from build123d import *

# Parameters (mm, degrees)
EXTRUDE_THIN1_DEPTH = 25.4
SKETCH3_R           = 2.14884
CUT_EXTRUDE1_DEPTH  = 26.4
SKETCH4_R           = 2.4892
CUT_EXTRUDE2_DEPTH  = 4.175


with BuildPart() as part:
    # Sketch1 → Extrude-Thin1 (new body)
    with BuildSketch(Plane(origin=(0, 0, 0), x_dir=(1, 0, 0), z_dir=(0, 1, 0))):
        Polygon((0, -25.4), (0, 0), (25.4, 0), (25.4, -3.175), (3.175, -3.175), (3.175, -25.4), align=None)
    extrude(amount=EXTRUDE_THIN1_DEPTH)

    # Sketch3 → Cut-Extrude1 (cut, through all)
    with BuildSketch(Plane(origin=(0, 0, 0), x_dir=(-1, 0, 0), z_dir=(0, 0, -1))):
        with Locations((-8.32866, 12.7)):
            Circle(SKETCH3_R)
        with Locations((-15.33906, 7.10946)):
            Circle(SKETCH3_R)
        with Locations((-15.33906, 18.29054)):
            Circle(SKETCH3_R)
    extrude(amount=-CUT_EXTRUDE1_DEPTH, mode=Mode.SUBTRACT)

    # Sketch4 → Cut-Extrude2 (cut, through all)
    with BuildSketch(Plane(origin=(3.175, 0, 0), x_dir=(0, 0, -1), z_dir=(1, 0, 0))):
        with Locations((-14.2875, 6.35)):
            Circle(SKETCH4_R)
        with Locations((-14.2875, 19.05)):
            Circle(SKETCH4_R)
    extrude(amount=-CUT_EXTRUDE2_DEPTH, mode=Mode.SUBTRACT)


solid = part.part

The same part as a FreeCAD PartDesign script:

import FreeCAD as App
import Part
import Sketcher

V = App.Vector
Q = App.Units.Quantity

doc = App.newDocument("Part")
body = doc.addObject("PartDesign::Body", "Body")

# Sketch on XZ plane
sketch1 = body.newObject("Sketcher::SketchObject", "Sketch")
sketch1.AttachmentSupport = (doc.getObject("XZ_Plane"), [""])
sketch1.MapMode = "FlatFace"
sketch1.addGeometry([
    Part.LineSegment(V(0, 0, 0), V(0, 25.4, 0)),  # 0
    Part.LineSegment(V(0, 25.4, 0), V(3.175, 25.4, 0)),  # 1
    Part.LineSegment(V(3.175, 25.4, 0), V(3.175, 3.175, 0)),  # 2
    Part.LineSegment(V(3.175, 3.175, 0), V(25.4, 3.175, 0)),  # 3
    Part.LineSegment(V(25.4, 3.175, 0), V(25.4, 0, 0)),  # 4
    Part.LineSegment(V(25.4, 0, 0), V(0, 0, 0)),  # 5
], False)
sketch1.addConstraint([
    Sketcher.Constraint("Coincident", 0, 2, 1, 1),
    Sketcher.Constraint("Coincident", 1, 2, 2, 1),
    Sketcher.Constraint("Coincident", 2, 2, 3, 1),
    Sketcher.Constraint("Coincident", 3, 2, 4, 1),
    Sketcher.Constraint("Coincident", 4, 2, 5, 1),
    Sketcher.Constraint("Coincident", 5, 2, 0, 1),
    Sketcher.Constraint("Vertical", 0),
    Sketcher.Constraint("Horizontal", 1),
    Sketcher.Constraint("Vertical", 2),
    Sketcher.Constraint("Horizontal", 3),
    Sketcher.Constraint("Vertical", 4),
    Sketcher.Constraint("Horizontal", 5),
    Sketcher.Constraint("Coincident", 5, 2, -1, 1),
    Sketcher.Constraint("Equal", 5, 0),
    Sketcher.Constraint("Equal", 3, 2),
    Sketcher.Constraint("DistanceX", 5, 2, 5, 1, Q("1 in")),
    Sketcher.Constraint("DistanceX", 1, 1, 1, 2, Q("0.125 in")),
])
pad1 = body.newObject("PartDesign::Pad", "Pad")
pad1.Profile = sketch1
pad1.Length = Q("1 in")
pad1.Reversed = True

# Sketch on XY plane
sketch2 = body.newObject("Sketcher::SketchObject", "Sketch001")
sketch2.AttachmentSupport = (doc.getObject("XY_Plane"), [""])
sketch2.MapMode = "FlatFace"
sketch2.addGeometry([
    Part.Circle(V(8.32866, 12.7, 0), V(0, 0, 1), 2.14884),
    Part.Circle(V(15.33906, 7.10946, 0), V(0, 0, 1), 2.14884),
    Part.Circle(V(15.33906, 18.29054, 0), V(0, 0, 1), 2.14884),
], False)
sketch2.addConstraint([
    Sketcher.Constraint("Equal", 0, 1),
    Sketcher.Constraint("Equal", 1, 2),
    Sketcher.Constraint("Vertical", 1, 3, 2, 3),
    Sketcher.Constraint("Diameter", 0, Q("0.1692 in")),
    Sketcher.Constraint("DistanceY", -1, 1, 0, 3, Q("0.5 in")),
    Sketcher.Constraint("DistanceX", 0, 3, 1, 3, Q("0.276 in")),
    Sketcher.Constraint("DistanceX", -1, 1, 0, 3, Q("0.3279 in")),
    Sketcher.Constraint("DistanceY", -1, 1, 1, 3, Q("0.2799 in")),
    Sketcher.Constraint("DistanceY", -1, 1, 2, 3, Q("0.7201 in")),
])
pocket1 = body.newObject("PartDesign::Pocket", "Pocket")
pocket1.Profile = sketch2
pocket1.Type = "ThroughAll"
pocket1.Reversed = True

# Sketch on YZ plane
sketch3 = body.newObject("Sketcher::SketchObject", "Sketch002")
sketch3.AttachmentSupport = (doc.getObject("YZ_Plane"), [""])
sketch3.MapMode = "FlatFace"
sketch3.AttachmentOffset = App.Placement(V(0, 0, 0.125 * 25.4), App.Rotation())
sketch3.addGeometry([
    Part.Circle(V(6.35, 14.2875, 0), V(0, 0, 1), 2.4892),
    Part.Circle(V(19.05, 14.2875, 0), V(0, 0, 1), 2.4892),
], False)
sketch3.addConstraint([
    Sketcher.Constraint("Equal", 0, 1),
    Sketcher.Constraint("Horizontal", 0, 3, 1, 3),
    Sketcher.Constraint("Diameter", 0, Q("0.196 in")),
    Sketcher.Constraint("DistanceX", 0, 3, 1, 3, Q("0.5 in")),
    Sketcher.Constraint("DistanceX", -1, 1, 0, 3, Q("0.25 in")),
    Sketcher.Constraint("DistanceY", -1, 1, 0, 3, Q("0.5625 in")),
])
pocket2 = body.newObject("PartDesign::Pocket", "Pocket001")
pocket2.Profile = sketch3
pocket2.Type = "ThroughAll"

doc.recompute()
